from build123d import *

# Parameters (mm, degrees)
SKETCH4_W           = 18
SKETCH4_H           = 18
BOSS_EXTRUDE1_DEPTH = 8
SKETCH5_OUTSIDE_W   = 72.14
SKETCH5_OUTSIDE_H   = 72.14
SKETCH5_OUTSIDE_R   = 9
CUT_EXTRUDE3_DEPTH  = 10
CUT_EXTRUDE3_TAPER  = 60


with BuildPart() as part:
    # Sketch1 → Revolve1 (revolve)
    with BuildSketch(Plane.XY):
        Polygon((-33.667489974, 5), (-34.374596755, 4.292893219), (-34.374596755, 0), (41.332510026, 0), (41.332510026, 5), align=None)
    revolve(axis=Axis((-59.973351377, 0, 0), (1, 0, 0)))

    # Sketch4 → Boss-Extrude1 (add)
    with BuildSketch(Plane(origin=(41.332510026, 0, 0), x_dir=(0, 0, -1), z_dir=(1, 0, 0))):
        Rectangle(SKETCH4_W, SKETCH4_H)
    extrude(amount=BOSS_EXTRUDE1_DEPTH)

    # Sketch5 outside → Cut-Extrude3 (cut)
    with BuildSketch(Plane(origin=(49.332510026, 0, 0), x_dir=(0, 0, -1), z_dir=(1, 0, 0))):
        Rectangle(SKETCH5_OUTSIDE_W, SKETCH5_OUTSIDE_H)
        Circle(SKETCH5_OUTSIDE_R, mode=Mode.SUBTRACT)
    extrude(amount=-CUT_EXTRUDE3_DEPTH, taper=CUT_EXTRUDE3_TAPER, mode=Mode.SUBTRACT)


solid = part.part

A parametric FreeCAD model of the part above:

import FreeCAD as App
import Part
import Sketcher
Q = App.Units.Quantity

doc = App.newDocument("Part")
params = doc.addObject("Spreadsheet::Sheet", "Params")
for row, (alias, value) in enumerate([
    ("sketch1_width", "75 mm"),
    ("sketch1_height", "5 mm"),
    ("sketch1_length", "1 mm"),
    ("revolution_angle", "360 deg"),
    ("sketch2_width", "18 mm"),
    ("pad1_length", "8 mm"),
    ("sketch3_diameter", "18 mm"),
    ("sketch3_width", "72.14 mm"),
    ("pocket1_length", "10 mm"),
    ("pocket1_taper", "60 deg"),
], start=1):
    params.set(f"A{row}", alias)
    params.set(f"B{row}", "=" + value)
    params.setAlias(f"B{row}", alias)

body = doc.addObject("PartDesign::Body", "Body")

sketch1 = body.newObject("Sketcher::SketchObject", "Sketch")
sketch1.AttachmentSupport = (doc.getObject("XY_Plane"), [""])
sketch1.MapMode = "FlatFace"
sketch1.addGeometry([
    Part.LineSegment(App.Vector(-33.7, 5, 0), App.Vector(-34.4, 4.3, 0)),
    Part.LineSegment(App.Vector(-34.4, 4.3, 0), App.Vector(-34.4, 0, 0)),
    Part.LineSegment(App.Vector(-34.4, 0, 0), App.Vector(41.3, 0, 0)),
    Part.LineSegment(App.Vector(41.3, 0, 0), App.Vector(41.3, 5, 0)),
    Part.LineSegment(App.Vector(41.3, 5, 0), App.Vector(-33.7, 5, 0)),
], False)
sketch1.addConstraint([
    Sketcher.Constraint("Coincident", 0, 2, 1, 1),
    Sketcher.Constraint("Coincident", 1, 2, 2, 1),
    Sketcher.Constraint("Coincident", 2, 2, 3, 1),
    Sketcher.Constraint("Coincident", 3, 2, 4, 1),
    Sketcher.Constraint("Coincident", 4, 2, 0, 1),
    Sketcher.Constraint("Vertical", 1),
    Sketcher.Constraint("Horizontal", 2),
    Sketcher.Constraint("Vertical", 3),
    Sketcher.Constraint("Horizontal", 4),
    Sketcher.Constraint("PointOnObject", 1, 2, -1),
    Sketcher.Constraint("DistanceX", 4, 2, 4, 1, Q("75 mm")),
    Sketcher.Constraint("DistanceY", 3, 1, 3, 2, Q("5 mm")),
    Sketcher.Constraint("Angle", 0, Q("-135 deg")),
    Sketcher.Constraint("Distance", 0, Q("1 mm")),
    Sketcher.Constraint("DistanceX", -1, 1, 2, 2, Q("41.33251 mm")),
])
sketch1.setExpression("Constraints[10]", "Params.sketch1_width")
sketch1.setExpression("Constraints[11]", "Params.sketch1_height")
sketch1.setExpression("Constraints[13]", "Params.sketch1_length")
revolution = body.newObject("PartDesign::Revolution", "Revolution")
revolution.Profile = sketch1
revolution.ReferenceAxis = (sketch1, ["H_Axis"])
revolution.setExpression("Angle", "Params.revolution_angle")

sketch2 = body.newObject("Sketcher::SketchObject", "Sketch001")
sketch2.AttachmentSupport = (doc.getObject("YZ_Plane"), [""])
sketch2.MapMode = "FlatFace"
sketch2.AttachmentOffset = App.Placement(App.Vector(0, 0, 41.33251), App.Rotation())
sketch2.addGeometry([
    Part.LineSegment(App.Vector(9, 9, 0), App.Vector(-9, 9, 0)),
    Part.LineSegment(App.Vector(-9, 9, 0), App.Vector(-9, -9, 0)),
    Part.LineSegment(App.Vector(-9, -9, 0), App.Vector(9, -9, 0)),
    Part.LineSegment(App.Vector(9, -9, 0), App.Vector(9, 9, 0)),
], False)
sketch2.addConstraint([
    Sketcher.Constraint("Coincident", 0, 2, 1, 1),
    Sketcher.Constraint("Coincident", 1, 2, 2, 1),
    Sketcher.Constraint("Coincident", 2, 2, 3, 1),
    Sketcher.Constraint("Coincident", 3, 2, 0, 1),
    Sketcher.Constraint("Horizontal", 0),
    Sketcher.Constraint("Vertical", 1),
    Sketcher.Constraint("Horizontal", 2),
    Sketcher.Constraint("Vertical", 3),
    Sketcher.Constraint("Symmetric", 0, 2, 2, 2, -1, 1),
    Sketcher.Constraint("Equal", 2, 1),
    Sketcher.Constraint("DistanceX", 0, 2, 0, 1, Q("18 mm")),
])
sketch2.setExpression("Constraints[10]", "Params.sketch2_width")
pad1 = body.newObject("PartDesign::Pad", "Pad")
pad1.Profile = sketch2
pad1.setExpression("Length", "Params.pad1_length")

sketch3 = body.newObject("Sketcher::SketchObject", "Sketch002")
sketch3.AttachmentSupport = (doc.getObject("YZ_Plane"), [""])
sketch3.MapMode = "FlatFace"
sketch3.AttachmentOffset = App.Placement(App.Vector(0, 0, 49.33251), App.Rotation())
sketch3.addGeometry([
    Part.LineSegment(App.Vector(36, 36, 0), App.Vector(-36, 36, 0)),
    Part.LineSegment(App.Vector(-36, 36, 0), App.Vector(-36, -36, 0)),
    Part.LineSegment(App.Vector(-36, -36, 0), App.Vector(36, -36, 0)),
    Part.LineSegment(App.Vector(36, -36, 0), App.Vector(36, 36, 0)),
    Part.Circle(App.Vector(0, 0, 0), App.Vector(0, 0, 1), 9),
], False)
sketch3.addConstraint([
    Sketcher.Constraint("Coincident", 0, 2, 1, 1),
    Sketcher.Constraint("Coincident", 1, 2, 2, 1),
    Sketcher.Constraint("Coincident", 2, 2, 3, 1),
    Sketcher.Constraint("Coincident", 3, 2, 0, 1),
    Sketcher.Constraint("Horizontal", 0),
    Sketcher.Constraint("Vertical", 1),
    Sketcher.Constraint("Horizontal", 2),
    Sketcher.Constraint("Vertical", 3),
    Sketcher.Constraint("Coincident", 4, 3, -1, 1),
    Sketcher.Constraint("Symmetric", 0, 2, 2, 2, -1, 1),
    Sketcher.Constraint("Equal", 2, 1),
    Sketcher.Constraint("Diameter", 4, Q("18 mm")),
    Sketcher.Constraint("DistanceX", 0, 2, 0, 1, Q("72.14 mm")),
])
sketch3.setExpression("Constraints[11]", "Params.sketch3_diameter")
sketch3.setExpression("Constraints[12]", "Params.sketch3_width")
pocket1 = body.newObject("PartDesign::Pocket", "Pocket")
pocket1.Profile = sketch3
pocket1.setExpression("Length", "Params.pocket1_length")
pocket1.setExpression("TaperAngle", "Params.pocket1_taper")

doc.recompute()
